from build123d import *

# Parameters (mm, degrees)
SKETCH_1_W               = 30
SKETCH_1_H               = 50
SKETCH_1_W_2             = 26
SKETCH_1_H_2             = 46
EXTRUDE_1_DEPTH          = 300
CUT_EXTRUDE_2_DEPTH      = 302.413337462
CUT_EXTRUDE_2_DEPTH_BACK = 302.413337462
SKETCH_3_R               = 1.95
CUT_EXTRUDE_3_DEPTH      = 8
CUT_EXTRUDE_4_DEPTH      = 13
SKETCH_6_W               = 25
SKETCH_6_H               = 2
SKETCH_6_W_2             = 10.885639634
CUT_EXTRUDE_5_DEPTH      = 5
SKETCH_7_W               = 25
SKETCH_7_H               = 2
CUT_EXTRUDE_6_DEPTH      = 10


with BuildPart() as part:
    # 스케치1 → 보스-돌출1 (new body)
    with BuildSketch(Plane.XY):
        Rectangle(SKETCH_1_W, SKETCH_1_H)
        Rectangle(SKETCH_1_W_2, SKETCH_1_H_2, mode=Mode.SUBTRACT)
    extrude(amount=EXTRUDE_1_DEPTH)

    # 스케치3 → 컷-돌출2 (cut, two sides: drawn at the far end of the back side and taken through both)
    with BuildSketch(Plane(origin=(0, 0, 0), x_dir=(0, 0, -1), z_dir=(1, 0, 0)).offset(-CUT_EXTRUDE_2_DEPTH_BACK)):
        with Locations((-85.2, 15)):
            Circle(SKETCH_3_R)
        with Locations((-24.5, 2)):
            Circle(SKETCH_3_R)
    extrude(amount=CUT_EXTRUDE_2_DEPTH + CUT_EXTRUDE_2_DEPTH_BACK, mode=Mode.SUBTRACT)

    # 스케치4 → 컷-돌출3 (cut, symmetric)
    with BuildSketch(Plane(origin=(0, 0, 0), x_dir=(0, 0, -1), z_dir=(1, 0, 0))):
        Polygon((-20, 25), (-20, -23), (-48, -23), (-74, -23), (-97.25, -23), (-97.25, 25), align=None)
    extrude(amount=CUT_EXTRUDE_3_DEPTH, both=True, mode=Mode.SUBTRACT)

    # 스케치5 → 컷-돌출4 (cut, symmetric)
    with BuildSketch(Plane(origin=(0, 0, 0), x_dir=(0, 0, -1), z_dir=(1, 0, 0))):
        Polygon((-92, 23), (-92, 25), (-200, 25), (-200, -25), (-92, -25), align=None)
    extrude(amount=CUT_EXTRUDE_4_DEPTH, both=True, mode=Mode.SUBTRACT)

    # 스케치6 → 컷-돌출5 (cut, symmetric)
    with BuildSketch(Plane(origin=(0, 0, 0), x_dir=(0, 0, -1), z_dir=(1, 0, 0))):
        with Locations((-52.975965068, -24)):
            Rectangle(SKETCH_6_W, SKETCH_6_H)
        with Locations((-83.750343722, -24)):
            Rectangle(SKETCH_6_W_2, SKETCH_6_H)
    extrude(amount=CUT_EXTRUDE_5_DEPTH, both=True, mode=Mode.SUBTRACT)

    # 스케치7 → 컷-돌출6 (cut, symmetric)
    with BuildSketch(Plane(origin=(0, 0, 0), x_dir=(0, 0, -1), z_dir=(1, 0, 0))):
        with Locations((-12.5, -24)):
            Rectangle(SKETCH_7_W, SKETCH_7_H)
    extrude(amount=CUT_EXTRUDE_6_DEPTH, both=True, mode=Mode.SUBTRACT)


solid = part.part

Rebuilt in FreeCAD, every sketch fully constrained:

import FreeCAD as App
import Part
import Sketcher
Q = App.Units.Quantity


def add_polygon(sketch, points):
    """Adds a closed chain of lines whose ends are joined by coincident constraints."""
    first, n = sketch.GeometryCount, len(points)
    for a, b in zip(points, points[1:] + points[:1]):
        sketch.addGeometry(Part.LineSegment(App.Vector(*a, 0), App.Vector(*b, 0)), False)
    for i in range(n):
        sketch.addConstraint(Sketcher.Constraint("Coincident", first + i, 2, first + (i + 1) % n, 1))

doc = App.newDocument("Part")
body = doc.addObject("PartDesign::Body", "Body")

# Sketch on XY plane
sketch1 = doc.addObject("Sketcher::SketchObject", "Sketch")
body.addObject(sketch1)
sketch1.AttachmentSupport = (doc.XY_Plane, [""])
sketch1.MapMode = "FlatFace"
add_polygon(sketch1, [(-15, 25), (-15, -25), (15, -25), (15, 25)])  # lines 0-3
add_polygon(sketch1, [(13, -23), (-13, -23), (-13, 23), (13, 23)])  # lines 4-7
sketch1.addConstraint([
    Sketcher.Constraint("Vertical", 0),
    Sketcher.Constraint("Horizontal", 1),
    Sketcher.Constraint("Vertical", 2),
    Sketcher.Constraint("Horizontal", 3),
    Sketcher.Constraint("Horizontal", 4),
    Sketcher.Constraint("Vertical", 5),
    Sketcher.Constraint("Horizontal", 6),
    Sketcher.Constraint("Vertical", 7),
    Sketcher.Constraint("Symmetric", 0, 2, 2, 2, -1, 1),
    Sketcher.Constraint("Symmetric", 4, 2, 6, 2, -1, 1),
    Sketcher.Constraint("DistanceX", 1, 1, 1, 2, Q("30 mm")),
    Sketcher.Constraint("DistanceX", 4, 2, 4, 1, Q("26 mm")),
    Sketcher.Constraint("DistanceY", 0, 2, 0, 1, Q("50 mm")),
    Sketcher.Constraint("DistanceY", 5, 1, 5, 2, Q("46 mm")),
])
pad1 = doc.addObject("PartDesign::Pad", "Pad")
body.addObject(pad1)
pad1.Profile = sketch1
pad1.Length = 300

# Sketch on YZ plane
sketch2 = doc.addObject("Sketcher::SketchObject", "Sketch001")
body.addObject(sketch2)
sketch2.AttachmentSupport = (doc.YZ_Plane, [""])
sketch2.MapMode = "FlatFace"
sketch2.addGeometry([
    Part.Circle(App.Vector(15, 85.2, 0), App.Vector(0, 0, 1), 1.95),
    Part.Circle(App.Vector(2, 24.5, 0), App.Vector(0, 0, 1), 1.95),
], False)
sketch2.addConstraint([
    Sketcher.Constraint("Equal", 0, 1),
    Sketcher.Constraint("Diameter", 0, Q("3.9 mm")),
    Sketcher.Constraint("DistanceX", -1, 1, 0, 3, Q("15 mm")),
    Sketcher.Constraint("DistanceX", -1, 1, 1, 3, Q("2 mm")),
    Sketcher.Constraint("DistanceY", -1, 1, 0, 3, Q("85.2 mm")),
    Sketcher.Constraint("DistanceY", -1, 1, 1, 3, Q("24.5 mm")),
])
pocket1 = doc.addObject("PartDesign::Pocket", "Pocket")
body.addObject(pocket1)
pocket1.Profile = sketch2
pocket1.Type = "ThroughAll"
pocket1.Midplane = True

# Sketch on YZ plane
sketch3 = doc.addObject("Sketcher::SketchObject", "Sketch002")
body.addObject(sketch3)
sketch3.AttachmentSupport = (doc.YZ_Plane, [""])
sketch3.MapMode = "FlatFace"
add_polygon(sketch3, [(-23, 20), (25, 20), (25, 97.25), (-23, 97.25)])  # lines 0-3
sketch3.addConstraint([
    Sketcher.Constraint("Horizontal", 0),
    Sketcher.Constraint("Vertical", 1),
    Sketcher.Constraint("Horizontal", 2),
    Sketcher.Constraint("Vertical", 3),
    Sketcher.Constraint("DistanceX", 0, 1, 0, 2, Q("48 mm")),
    Sketcher.Constraint("DistanceX", -1, 1, 0, 2, Q("25 mm")),
    Sketcher.Constraint("DistanceY", -1, 1, 0, 2, Q("20 mm")),
    Sketcher.Constraint("DistanceY", 1, 1, 1, 2, Q("77.25 mm")),
])
pocket2 = doc.addObject("PartDesign::Pocket", "Pocket001")
body.addObject(pocket2)
pocket2.Profile = sketch3
pocket2.Length = 16
pocket2.Midplane = True

# Sketch on YZ plane
sketch4 = doc.addObject("Sketcher::SketchObject", "Sketch003")
body.addObject(sketch4)
sketch4.AttachmentSupport = (doc.YZ_Plane, [""])
sketch4.MapMode = "FlatFace"
add_polygon(sketch4, [(25, 92), (25, 200), (-25, 200), (-25, 92)])  # lines 0-3
sketch4.addConstraint([
    Sketcher.Constraint("Vertical", 0),
    Sketcher.Constraint("Horizontal", 1),
    Sketcher.Constraint("Vertical", 2),
    Sketcher.Constraint("Horizontal", 3),
    Sketcher.Constraint("DistanceX", 1, 2, 1, 1, Q("50 mm")),
    Sketcher.Constraint("DistanceY", 0, 1, 0, 2, Q("108 mm")),
    Sketcher.Constraint("DistanceX", -1, 1, 0, 2, Q("25 mm")),
    Sketcher.Constraint("DistanceY", -1, 1, 0, 2, Q("200 mm")),
])
pocket3 = doc.addObject("PartDesign::Pocket", "Pocket002")
body.addObject(pocket3)
pocket3.Profile = sketch4
pocket3.Length = 26
pocket3.Midplane = True

# Sketch on YZ plane
sketch5 = doc.addObject("Sketcher::SketchObject", "Sketch004")
body.addObject(sketch5)
sketch5.AttachmentSupport = (doc.YZ_Plane, [""])
sketch5.MapMode = "FlatFace"
add_polygon(sketch5, [(-23, 65.475965), (-25, 65.475965), (-25, 40.475965), (-23, 40.475965)])  # lines 0-3
add_polygon(sketch5, [(-23, 89.193164), (-25, 89.193164), (-25, 78.307524), (-23, 78.307524)])  # lines 4-7
sketch5.addConstraint([
    Sketcher.Constraint("Horizontal", 0),
    Sketcher.Constraint("Vertical", 1),
    Sketcher.Constraint("Horizontal", 2),
    Sketcher.Constraint("Vertical", 3),
    Sketcher.Constraint("Horizontal", 4),
    Sketcher.Constraint("Vertical", 5),
    Sketcher.Constraint("Horizontal", 6),
    Sketcher.Constraint("Vertical", 7),
    Sketcher.Constraint("Vertical", 1, 2, 4, 2),
    Sketcher.Constraint("Vertical", 3, 2, 6, 2),
    Sketcher.Constraint("DistanceX", 0, 2, 0, 1, Q("2 mm")),
    Sketcher.Constraint("DistanceY", 1, 2, 1, 1, Q("25 mm")),
    Sketcher.Constraint("DistanceX", 0, 2, -1, 1, Q("25 mm")),
    Sketcher.Constraint("DistanceY", 5, 2, 5, 1, Q("10.88564 mm")),
    Sketcher.Constraint("DistanceY", 0, 2, 4, 2, Q("23.717198 mm")),
    Sketcher.Constraint("DistanceY", -1, 1, 0, 2, Q("65.475965 mm")),
])
pocket4 = doc.addObject("PartDesign::Pocket", "Pocket003")
body.addObject(pocket4)
pocket4.Profile = sketch5
pocket4.Length = 10
pocket4.Midplane = True

# Sketch on YZ plane
sketch6 = doc.addObject("Sketcher::SketchObject", "Sketch005")
body.addObject(sketch6)
sketch6.AttachmentSupport = (doc.YZ_Plane, [""])
sketch6.MapMode = "FlatFace"
add_polygon(sketch6, [(-23, 25), (-25, 25), (-25, 0), (-23, 0)])  # lines 0-3
sketch6.addConstraint([
    Sketcher.Constraint("Horizontal", 0),
    Sketcher.Constraint("Vertical", 1),
    Sketcher.Constraint("Horizontal", 2),
    Sketcher.Constraint("Vertical", 3),
    Sketcher.Constraint("PointOnObject", 1, 2, -1),
    Sketcher.Constraint("DistanceX", 0, 2, 0, 1, Q("2 mm")),
    Sketcher.Constraint("DistanceY", 1, 2, 1, 1, Q("25 mm")),
    Sketcher.Constraint("DistanceX", 0, 2, -1, 1, Q("25 mm")),
])
pocket5 = doc.addObject("PartDesign::Pocket", "Pocket004")
body.addObject(pocket5)
pocket5.Profile = sketch6
pocket5.Length = 20
pocket5.Midplane = True

doc.recompute()
